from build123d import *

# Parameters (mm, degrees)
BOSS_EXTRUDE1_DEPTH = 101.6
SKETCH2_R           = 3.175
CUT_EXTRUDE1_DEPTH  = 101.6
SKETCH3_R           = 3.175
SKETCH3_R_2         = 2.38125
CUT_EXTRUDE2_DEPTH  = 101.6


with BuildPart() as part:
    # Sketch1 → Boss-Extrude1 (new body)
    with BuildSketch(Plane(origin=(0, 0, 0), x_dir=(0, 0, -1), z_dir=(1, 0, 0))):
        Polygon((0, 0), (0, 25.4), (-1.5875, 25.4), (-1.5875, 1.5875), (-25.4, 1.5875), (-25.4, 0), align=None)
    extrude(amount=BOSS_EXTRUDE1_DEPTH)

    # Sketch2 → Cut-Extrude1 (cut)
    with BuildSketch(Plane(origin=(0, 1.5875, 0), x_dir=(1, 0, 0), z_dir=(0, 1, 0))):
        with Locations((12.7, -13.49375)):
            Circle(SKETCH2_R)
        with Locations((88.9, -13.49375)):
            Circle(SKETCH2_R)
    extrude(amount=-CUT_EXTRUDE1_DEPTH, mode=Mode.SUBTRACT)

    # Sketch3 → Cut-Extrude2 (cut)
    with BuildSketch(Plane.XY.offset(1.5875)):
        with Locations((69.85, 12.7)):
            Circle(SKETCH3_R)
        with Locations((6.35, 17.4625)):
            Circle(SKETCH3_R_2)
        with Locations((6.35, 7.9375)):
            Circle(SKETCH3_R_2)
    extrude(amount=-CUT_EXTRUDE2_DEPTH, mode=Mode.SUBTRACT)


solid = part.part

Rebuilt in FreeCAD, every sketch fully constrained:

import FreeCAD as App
import Part
import Sketcher
from FreeCAD import Vector
Q = App.Units.Quantity

doc = App.newDocument("Part")
body = doc.addObject("PartDesign::Body", "Body")

sketch1 = body.newObject("Sketcher::SketchObject", "Sketch")
sketch1.AttachmentSupport = (doc.getObject("YZ_Plane"), [""])
sketch1.MapMode = "FlatFace"
sketch1.addGeometry([
    Part.LineSegment(Vector(0, 0, 0), Vector(25.4, 0, 0)),
    Part.LineSegment(Vector(25.4, 0, 0), Vector(25.4, 1.6, 0)),
    Part.LineSegment(Vector(25.4, 1.6, 0), Vector(1.6, 1.6, 0)),
    Part.LineSegment(Vector(1.6, 1.6, 0), Vector(1.6, 25.4, 0)),
    Part.LineSegment(Vector(1.6, 25.4, 0), Vector(0, 25.4, 0)),
    Part.LineSegment(Vector(0, 25.4, 0), Vector(0, 0, 0)),
], False)
sketch1.addConstraint([
    Sketcher.Constraint("Coincident", 0, 2, 1, 1),
    Sketcher.Constraint("Coincident", 1, 2, 2, 1),
    Sketcher.Constraint("Coincident", 2, 2, 3, 1),
    Sketcher.Constraint("Coincident", 3, 2, 4, 1),
    Sketcher.Constraint("Coincident", 4, 2, 5, 1),
    Sketcher.Constraint("Coincident", 5, 2, 0, 1),
    Sketcher.Constraint("Horizontal", 0),
    Sketcher.Constraint("Vertical", 1),
    Sketcher.Constraint("Horizontal", 2),
    Sketcher.Constraint("Vertical", 3),
    Sketcher.Constraint("Horizontal", 4),
    Sketcher.Constraint("Vertical", 5),
    Sketcher.Constraint("Coincident", 5, 2, -1, 1),
    Sketcher.Constraint("Equal", 4, 1),
    Sketcher.Constraint("Equal", 2, 3),
    Sketcher.Constraint("DistanceX", 0, 1, 0, 2, Q("1 in")),
    Sketcher.Constraint("DistanceX", 2, 2, 2, 1, Q("0.9375 in")),
])
pad1 = body.newObject("PartDesign::Pad", "Pad")
pad1.Profile = sketch1
pad1.Length = Q("4 in")

sketch2 = body.newObject("Sketcher::SketchObject", "Sketch001")
sketch2.AttachmentSupport = (doc.getObject("XZ_Plane"), [""])
sketch2.MapMode = "FlatFace"
sketch2.AttachmentOffset = App.Placement(Vector(0, 0, -0.0625 * 25.4), App.Rotation())
sketch2.addGeometry([
    Part.Circle(Vector(12.7, 13.5, 0), Vector(0, 0, 1), 3.2),
    Part.Circle(Vector(88.9, 13.5, 0), Vector(0, 0, 1), 3.2),
], False)
sketch2.addConstraint([
    Sketcher.Constraint("Equal", 0, 1),
    Sketcher.Constraint("Horizontal", 0, 3, 1, 3),
    Sketcher.Constraint("Diameter", 0, Q("0.25 in")),
    Sketcher.Constraint("DistanceX", 0, 3, 1, 3, Q("3 in")),
    Sketcher.Constraint("DistanceX", -1, 1, 0, 3, Q("0.5 in")),
    Sketcher.Constraint("DistanceY", -1, 1, 0, 3, Q("0.53125 in")),
])
pocket1 = body.newObject("PartDesign::Pocket", "Pocket")
pocket1.Profile = sketch2
pocket1.Length = Q("4 in")
pocket1.Reversed = True

sketch3 = body.newObject("Sketcher::SketchObject", "Sketch002")
sketch3.AttachmentSupport = (doc.getObject("XY_Plane"), [""])
sketch3.MapMode = "FlatFace"
sketch3.AttachmentOffset = App.Placement(Vector(0, 0, 0.0625 * 25.4), App.Rotation())
sketch3.addGeometry([
    Part.Circle(Vector(69.8, 12.7, 0), Vector(0, 0, 1), 3.2),
    Part.Circle(Vector(6.3, 17.5, 0), Vector(0, 0, 1), 2.4),
    Part.Circle(Vector(6.3, 7.9, 0), Vector(0, 0, 1), 2.4),
], False)
sketch3.addConstraint([
    Sketcher.Constraint("Equal", 1, 2),
    Sketcher.Constraint("Vertical", 1, 3, 2, 3),
    Sketcher.Constraint("Diameter", 0, Q("0.25 in")),
    Sketcher.Constraint("Diameter", 1, Q("0.1875 in")),
    Sketcher.Constraint("DistanceY", -1, 1, 0, 3, Q("0.5 in")),
    Sketcher.Constraint("DistanceX", 1, 3, 0, 3, Q("2.5 in")),
    Sketcher.Constraint("DistanceX", -1, 1, 0, 3, Q("2.75 in")),
    Sketcher.Constraint("DistanceY", -1, 1, 1, 3, Q("0.6875 in")),
    Sketcher.Constraint("DistanceY", -1, 1, 2, 3, Q("0.3125 in")),
])
pocket2 = body.newObject("PartDesign::Pocket", "Pocket001")
pocket2.Profile = sketch3
pocket2.Length = Q("4 in")

doc.recompute()
